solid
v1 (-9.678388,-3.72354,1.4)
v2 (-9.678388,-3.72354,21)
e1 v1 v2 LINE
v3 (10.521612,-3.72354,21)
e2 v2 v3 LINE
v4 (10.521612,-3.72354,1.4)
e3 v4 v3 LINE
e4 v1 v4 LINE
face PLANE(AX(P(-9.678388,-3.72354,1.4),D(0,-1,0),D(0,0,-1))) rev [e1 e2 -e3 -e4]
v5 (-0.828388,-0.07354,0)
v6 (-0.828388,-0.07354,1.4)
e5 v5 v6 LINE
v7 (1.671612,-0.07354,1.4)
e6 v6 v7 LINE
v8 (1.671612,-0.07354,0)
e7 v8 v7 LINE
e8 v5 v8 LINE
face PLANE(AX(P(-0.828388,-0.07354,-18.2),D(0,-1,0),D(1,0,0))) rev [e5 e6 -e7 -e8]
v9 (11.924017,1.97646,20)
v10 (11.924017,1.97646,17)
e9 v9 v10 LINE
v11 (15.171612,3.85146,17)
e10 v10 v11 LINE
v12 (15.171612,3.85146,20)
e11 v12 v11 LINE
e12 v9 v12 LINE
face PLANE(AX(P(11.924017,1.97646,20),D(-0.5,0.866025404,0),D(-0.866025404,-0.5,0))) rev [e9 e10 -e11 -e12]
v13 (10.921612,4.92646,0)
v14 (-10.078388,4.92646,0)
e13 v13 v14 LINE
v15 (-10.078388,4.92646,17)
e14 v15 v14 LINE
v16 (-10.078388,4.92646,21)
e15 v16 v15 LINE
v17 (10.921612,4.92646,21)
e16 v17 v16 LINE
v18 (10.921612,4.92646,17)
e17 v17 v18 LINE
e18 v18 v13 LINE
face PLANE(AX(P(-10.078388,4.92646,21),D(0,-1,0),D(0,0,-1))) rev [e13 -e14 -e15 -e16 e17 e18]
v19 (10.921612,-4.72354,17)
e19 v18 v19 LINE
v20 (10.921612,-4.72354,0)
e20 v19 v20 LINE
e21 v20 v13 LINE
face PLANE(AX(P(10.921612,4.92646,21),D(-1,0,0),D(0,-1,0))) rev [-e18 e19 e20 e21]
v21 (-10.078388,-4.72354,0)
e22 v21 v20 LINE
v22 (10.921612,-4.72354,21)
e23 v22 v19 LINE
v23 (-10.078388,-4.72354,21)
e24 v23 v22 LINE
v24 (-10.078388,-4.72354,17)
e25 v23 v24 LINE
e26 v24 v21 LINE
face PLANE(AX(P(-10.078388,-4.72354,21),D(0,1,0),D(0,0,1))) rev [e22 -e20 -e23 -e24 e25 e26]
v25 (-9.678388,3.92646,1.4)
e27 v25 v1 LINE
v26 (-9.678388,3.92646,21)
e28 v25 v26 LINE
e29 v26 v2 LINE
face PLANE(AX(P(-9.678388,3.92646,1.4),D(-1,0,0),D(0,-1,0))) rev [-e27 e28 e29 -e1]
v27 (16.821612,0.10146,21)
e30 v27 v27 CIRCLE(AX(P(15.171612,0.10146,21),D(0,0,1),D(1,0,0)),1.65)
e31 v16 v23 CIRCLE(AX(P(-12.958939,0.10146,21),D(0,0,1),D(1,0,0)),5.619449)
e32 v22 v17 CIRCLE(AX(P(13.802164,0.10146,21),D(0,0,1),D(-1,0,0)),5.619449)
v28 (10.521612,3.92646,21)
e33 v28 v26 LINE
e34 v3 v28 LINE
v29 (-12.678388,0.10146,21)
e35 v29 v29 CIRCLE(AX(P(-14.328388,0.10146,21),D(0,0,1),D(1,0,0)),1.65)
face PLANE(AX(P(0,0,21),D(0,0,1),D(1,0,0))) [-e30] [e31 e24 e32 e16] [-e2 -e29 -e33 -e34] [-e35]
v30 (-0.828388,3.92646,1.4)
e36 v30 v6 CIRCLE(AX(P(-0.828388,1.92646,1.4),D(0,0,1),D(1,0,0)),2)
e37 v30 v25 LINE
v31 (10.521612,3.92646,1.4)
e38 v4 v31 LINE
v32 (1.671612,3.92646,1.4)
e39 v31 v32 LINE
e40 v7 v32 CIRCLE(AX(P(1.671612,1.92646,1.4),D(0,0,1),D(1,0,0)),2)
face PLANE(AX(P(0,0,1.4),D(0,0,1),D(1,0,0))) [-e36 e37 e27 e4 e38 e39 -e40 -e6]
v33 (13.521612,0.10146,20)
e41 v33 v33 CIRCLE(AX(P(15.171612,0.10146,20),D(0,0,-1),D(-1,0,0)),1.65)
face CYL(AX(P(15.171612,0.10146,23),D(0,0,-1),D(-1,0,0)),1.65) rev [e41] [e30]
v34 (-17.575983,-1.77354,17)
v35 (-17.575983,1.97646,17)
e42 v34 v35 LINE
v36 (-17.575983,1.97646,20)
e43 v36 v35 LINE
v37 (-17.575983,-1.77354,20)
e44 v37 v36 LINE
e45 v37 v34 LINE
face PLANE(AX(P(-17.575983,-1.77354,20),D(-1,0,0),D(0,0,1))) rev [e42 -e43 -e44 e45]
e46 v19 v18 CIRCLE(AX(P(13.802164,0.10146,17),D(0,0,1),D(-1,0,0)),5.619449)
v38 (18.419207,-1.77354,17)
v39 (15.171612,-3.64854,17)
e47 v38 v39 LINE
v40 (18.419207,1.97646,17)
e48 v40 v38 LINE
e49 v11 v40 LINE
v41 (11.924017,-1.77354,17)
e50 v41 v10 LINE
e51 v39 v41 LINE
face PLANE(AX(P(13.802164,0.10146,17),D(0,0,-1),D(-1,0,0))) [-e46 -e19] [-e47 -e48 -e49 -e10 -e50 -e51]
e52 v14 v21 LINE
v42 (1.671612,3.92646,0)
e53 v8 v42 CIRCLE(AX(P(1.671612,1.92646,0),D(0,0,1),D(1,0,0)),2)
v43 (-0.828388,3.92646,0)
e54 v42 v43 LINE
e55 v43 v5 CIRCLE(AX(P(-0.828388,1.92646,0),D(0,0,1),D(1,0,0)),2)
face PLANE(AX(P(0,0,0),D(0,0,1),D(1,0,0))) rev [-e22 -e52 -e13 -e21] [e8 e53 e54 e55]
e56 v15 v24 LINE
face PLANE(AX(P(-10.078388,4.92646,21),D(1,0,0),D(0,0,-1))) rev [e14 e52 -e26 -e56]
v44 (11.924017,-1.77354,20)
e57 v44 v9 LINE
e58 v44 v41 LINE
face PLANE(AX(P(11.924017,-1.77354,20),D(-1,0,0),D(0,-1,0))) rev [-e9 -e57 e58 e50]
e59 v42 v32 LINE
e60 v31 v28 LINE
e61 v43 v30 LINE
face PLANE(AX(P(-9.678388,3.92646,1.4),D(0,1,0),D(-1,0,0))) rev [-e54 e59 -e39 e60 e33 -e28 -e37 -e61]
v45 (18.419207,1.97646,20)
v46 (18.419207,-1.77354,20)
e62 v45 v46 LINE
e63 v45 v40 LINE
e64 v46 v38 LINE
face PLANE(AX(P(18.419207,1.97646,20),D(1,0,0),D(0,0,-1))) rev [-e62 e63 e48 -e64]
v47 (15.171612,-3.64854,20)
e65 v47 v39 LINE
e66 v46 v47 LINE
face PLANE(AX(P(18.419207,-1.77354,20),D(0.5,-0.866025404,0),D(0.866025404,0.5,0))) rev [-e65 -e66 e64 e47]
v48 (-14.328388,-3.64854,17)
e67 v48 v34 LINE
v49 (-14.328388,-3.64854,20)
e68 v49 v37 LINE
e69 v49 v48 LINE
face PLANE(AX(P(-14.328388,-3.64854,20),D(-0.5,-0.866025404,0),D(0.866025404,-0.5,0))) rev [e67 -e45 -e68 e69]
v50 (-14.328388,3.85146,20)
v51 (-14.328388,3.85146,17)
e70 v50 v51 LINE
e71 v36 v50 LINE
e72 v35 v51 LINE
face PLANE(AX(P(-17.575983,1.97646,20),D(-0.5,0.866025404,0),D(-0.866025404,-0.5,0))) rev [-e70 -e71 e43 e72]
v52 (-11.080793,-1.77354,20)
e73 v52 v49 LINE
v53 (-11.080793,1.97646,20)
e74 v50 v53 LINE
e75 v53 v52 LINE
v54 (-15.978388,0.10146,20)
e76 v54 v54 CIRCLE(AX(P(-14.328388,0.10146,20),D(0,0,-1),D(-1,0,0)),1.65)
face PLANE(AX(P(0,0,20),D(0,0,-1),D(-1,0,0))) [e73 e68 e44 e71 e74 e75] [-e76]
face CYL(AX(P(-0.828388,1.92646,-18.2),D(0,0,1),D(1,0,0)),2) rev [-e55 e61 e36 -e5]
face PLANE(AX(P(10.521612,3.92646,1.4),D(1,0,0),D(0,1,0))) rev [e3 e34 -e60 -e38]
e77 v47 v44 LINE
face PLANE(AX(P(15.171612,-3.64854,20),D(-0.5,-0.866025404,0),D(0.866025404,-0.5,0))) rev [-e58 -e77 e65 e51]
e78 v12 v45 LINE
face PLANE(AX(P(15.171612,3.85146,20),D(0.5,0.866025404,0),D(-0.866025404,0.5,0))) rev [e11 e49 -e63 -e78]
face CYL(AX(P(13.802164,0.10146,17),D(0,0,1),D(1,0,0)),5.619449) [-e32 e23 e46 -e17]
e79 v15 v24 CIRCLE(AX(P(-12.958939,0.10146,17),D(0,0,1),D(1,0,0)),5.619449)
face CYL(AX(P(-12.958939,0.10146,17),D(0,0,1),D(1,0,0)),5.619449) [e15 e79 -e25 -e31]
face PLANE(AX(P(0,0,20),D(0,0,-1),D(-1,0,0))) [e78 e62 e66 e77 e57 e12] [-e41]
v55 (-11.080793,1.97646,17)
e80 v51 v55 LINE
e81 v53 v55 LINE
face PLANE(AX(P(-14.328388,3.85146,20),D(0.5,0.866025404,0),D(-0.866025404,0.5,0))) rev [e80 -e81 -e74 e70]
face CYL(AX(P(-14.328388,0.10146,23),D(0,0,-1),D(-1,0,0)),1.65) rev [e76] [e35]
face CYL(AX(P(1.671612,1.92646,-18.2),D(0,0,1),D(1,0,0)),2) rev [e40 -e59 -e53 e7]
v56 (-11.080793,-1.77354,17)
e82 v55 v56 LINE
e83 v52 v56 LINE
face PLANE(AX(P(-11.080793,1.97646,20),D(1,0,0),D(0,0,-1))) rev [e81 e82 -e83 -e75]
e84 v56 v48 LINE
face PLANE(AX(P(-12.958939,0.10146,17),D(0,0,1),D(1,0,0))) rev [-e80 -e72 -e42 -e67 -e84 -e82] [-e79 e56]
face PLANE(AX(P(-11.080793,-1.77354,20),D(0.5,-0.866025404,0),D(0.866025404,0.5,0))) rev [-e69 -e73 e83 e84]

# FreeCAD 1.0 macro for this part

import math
import FreeCAD as App
import Part
import Sketcher

V = App.Vector
Q = App.Units.Quantity

doc = App.newDocument("Part")
body = doc.addObject("PartDesign::Body", "Body")

sketch1 = body.newObject("Sketcher::SketchObject", "Sketch")
sketch1.AttachmentSupport = (doc.getObject("XY_Plane"), [""])
sketch1.MapMode = "FlatFace"
sketch1.addGeometry(Part.LineSegment(V(-10.078388, 4.92646, 0), V(-10.078388, -4.72354, 0)), False)
sketch1.addGeometry(Part.LineSegment(V(-10.078388, -4.72354, 0), V(10.921612, -4.72354, 0)), False)
sketch1.addGeometry(Part.LineSegment(V(10.921612, -4.72354, 0), V(10.921612, 4.92646, 0)), False)
sketch1.addGeometry(Part.LineSegment(V(10.921612, 4.92646, 0), V(-10.078388, 4.92646, 0)), False)
sketch1.addConstraint(Sketcher.Constraint("Coincident", 0, 2, 1, 1))
sketch1.addConstraint(Sketcher.Constraint("Coincident", 1, 2, 2, 1))
sketch1.addConstraint(Sketcher.Constraint("Coincident", 2, 2, 3, 1))
sketch1.addConstraint(Sketcher.Constraint("Coincident", 3, 2, 0, 1))
sketch1.addConstraint(Sketcher.Constraint("Vertical", 0))
sketch1.addConstraint(Sketcher.Constraint("Horizontal", 1))
sketch1.addConstraint(Sketcher.Constraint("Vertical", 2))
sketch1.addConstraint(Sketcher.Constraint("Horizontal", 3))
sketch1.addConstraint(Sketcher.Constraint("DistanceX", 1, 1, 1, 2, 21.0))
sketch1.addConstraint(Sketcher.Constraint("DistanceY", 0, 2, 0, 1, 9.65))
sketch1.addConstraint(Sketcher.Constraint("DistanceY", 0, 2, -1, 1, 4.72354))
sketch1.addConstraint(Sketcher.Constraint("DistanceX", 0, 2, -1, 1, 10.078388))
pad1 = body.newObject("PartDesign::Pad", "Pad")
pad1.Profile = sketch1
pad1.Length = 21

sketch2 = body.newObject("Sketcher::SketchObject", "Sketch001")
sketch2.AttachmentSupport = (doc.getObject("XY_Plane"), [""])
sketch2.MapMode = "FlatFace"
sketch2.AttachmentOffset = App.Placement(V(0, 0, 21), App.Rotation())
sketch2.addGeometry(Part.LineSegment(V(-9.678388, 3.92646, 0), V(-9.678388, -3.72354, 0)), False)
sketch2.addGeometry(Part.LineSegment(V(-9.678388, -3.72354, 0), V(10.521612, -3.72354, 0)), False)
sketch2.addGeometry(Part.LineSegment(V(10.521612, -3.72354, 0), V(10.521612, 3.92646, 0)), False)
sketch2.addGeometry(Part.LineSegment(V(10.521612, 3.92646, 0), V(-9.678388, 3.92646, 0)), False)
sketch2.addConstraint(Sketcher.Constraint("Coincident", 0, 2, 1, 1))
sketch2.addConstraint(Sketcher.Constraint("Coincident", 1, 2, 2, 1))
sketch2.addConstraint(Sketcher.Constraint("Coincident", 2, 2, 3, 1))
sketch2.addConstraint(Sketcher.Constraint("Coincident", 3, 2, 0, 1))
sketch2.addConstraint(Sketcher.Constraint("Vertical", 0))
sketch2.addConstraint(Sketcher.Constraint("Horizontal", 1))
sketch2.addConstraint(Sketcher.Constraint("Vertical", 2))
sketch2.addConstraint(Sketcher.Constraint("Horizontal", 3))
sketch2.addConstraint(Sketcher.Constraint("DistanceX", 1, 1, 1, 2, 20.2))
sketch2.addConstraint(Sketcher.Constraint("DistanceY", 0, 2, 0, 1, 7.65))
sketch2.addConstraint(Sketcher.Constraint("DistanceY", 0, 2, -1, 1, 3.72354))
sketch2.addConstraint(Sketcher.Constraint("DistanceX", 0, 2, -1, 1, 9.678388))
pocket1 = body.newObject("PartDesign::Pocket", "Pocket")
pocket1.Profile = sketch2
pocket1.Length = 19.6

sketch3 = body.newObject("Sketcher::SketchObject", "Sketch002")
sketch3.AttachmentSupport = (doc.getObject("XY_Plane"), [""])
sketch3.MapMode = "FlatFace"
sketch3.AttachmentOffset = App.Placement(V(0, 0, 1.4), App.Rotation())
sketch3.addGeometry(Part.LineSegment(V(1.671612, 3.92646, 0), V(-0.828388, 3.92646, 0)), False)
sketch3.addGeometry(Part.ArcOfCircle(Part.Circle(V(-0.828388, 1.92646, 0), V(0, 0, 1), 2), math.radians(90), math.radians(270)), False)
sketch3.addGeometry(Part.LineSegment(V(-0.828388, -0.07354, 0), V(1.671612, -0.07354, 0)), False)
sketch3.addGeometry(Part.ArcOfCircle(Part.Circle(V(1.671612, 1.92646, 0), V(0, 0, 1), 2), math.radians(-90), math.radians(90)), False)
sketch3.addConstraint(Sketcher.Constraint("Tangent", 0, 2, 1, 1))
sketch3.addConstraint(Sketcher.Constraint("Tangent", 1, 2, 2, 1))
sketch3.addConstraint(Sketcher.Constraint("Tangent", 2, 2, 3, 1))
sketch3.addConstraint(Sketcher.Constraint("Tangent", 3, 2, 0, 1))
sketch3.addConstraint(Sketcher.Constraint("Horizontal", 0))
sketch3.addConstraint(Sketcher.Constraint("Horizontal", 2))
sketch3.addConstraint(Sketcher.Constraint("Radius", 1, 2.0))
sketch3.addConstraint(Sketcher.Constraint("DistanceX", 0, 2, 0, 1, 2.5))
sketch3.addConstraint(Sketcher.Constraint("DistanceY", -1, 1, 1, 3, 1.92646))
sketch3.addConstraint(Sketcher.Constraint("DistanceX", 1, 3, -1, 1, 0.828388))
pocket2 = body.newObject("PartDesign::Pocket", "Pocket001")
pocket2.Profile = sketch3
pocket2.Length = 19.6

sketch4 = body.newObject("Sketcher::SketchObject", "Sketch003")
sketch4.AttachmentSupport = (doc.getObject("XY_Plane"), [""])
sketch4.MapMode = "FlatFace"
sketch4.AttachmentOffset = App.Placement(V(0, 0, 21), App.Rotation())
sketch4.addGeometry(Part.LineSegment(V(-10.078388, -4.72354, 0), V(-10.078388, 4.92646, 0)), False)
sketch4.addGeometry(Part.ArcOfCircle(Part.Circle(V(-12.958939, 0.10146, 0), V(0, 0, 1), 5.619449), math.radians(59.162567), math.radians(300.837433)), False)
sketch4.addConstraint(Sketcher.Constraint("Coincident", 0, 1, 1, 2))
sketch4.addConstraint(Sketcher.Constraint("Coincident", 1, 1, 0, 2))
sketch4.addConstraint(Sketcher.Constraint("Vertical", 0))
sketch4.addConstraint(Sketcher.Constraint("DistanceY", 0, 1, 0, 2, 9.65))
sketch4.addConstraint(Sketcher.Constraint("Radius", 1, 5.619449))
sketch4.addConstraint(Sketcher.Constraint("DistanceX", 1, 3, -1, 1, 12.958939))
sketch4.addConstraint(Sketcher.Constraint("DistanceY", -1, 1, 1, 3, 0.10146))
pad2 = body.newObject("PartDesign::Pad", "Pad001")
pad2.Profile = sketch4
pad2.Length = 4
pad2.Reversed = True

sketch5 = body.newObject("Sketcher::SketchObject", "Sketch004")
sketch5.AttachmentSupport = (doc.getObject("XY_Plane"), [""])
sketch5.MapMode = "FlatFace"
sketch5.AttachmentOffset = App.Placement(V(0, 0, 17), App.Rotation())
sketch5.addGeometry(Part.LineSegment(V(-14.328388, 3.85146, 0), V(-11.080793, 1.97646, 0)), False)
sketch5.addGeometry(Part.LineSegment(V(-11.080793, 1.97646, 0), V(-11.080793, -1.77354, 0)), False)
sketch5.addGeometry(Part.LineSegment(V(-11.080793, -1.77354, 0), V(-14.328388, -3.64854, 0)), False)
sketch5.addGeometry(Part.LineSegment(V(-14.328388, -3.64854, 0), V(-17.575983, -1.77354, 0)), False)
sketch5.addGeometry(Part.LineSegment(V(-17.575983, -1.77354, 0), V(-17.575983, 1.97646, 0)), False)
sketch5.addGeometry(Part.LineSegment(V(-17.575983, 1.97646, 0), V(-14.328388, 3.85146, 0)), False)
sketch5.addConstraint(Sketcher.Constraint("Coincident", 0, 2, 1, 1))
sketch5.addConstraint(Sketcher.Constraint("Coincident", 1, 2, 2, 1))
sketch5.addConstraint(Sketcher.Constraint("Coincident", 2, 2, 3, 1))
sketch5.addConstraint(Sketcher.Constraint("Coincident", 3, 2, 4, 1))
sketch5.addConstraint(Sketcher.Constraint("Coincident", 4, 2, 5, 1))
sketch5.addConstraint(Sketcher.Constraint("Coincident", 5, 2, 0, 1))
sketch5.addConstraint(Sketcher.Constraint("Vertical", 1))
sketch5.addConstraint(Sketcher.Constraint("Vertical", 4))
sketch5.addConstraint(Sketcher.Constraint("Parallel", 0, 3))
sketch5.addConstraint(Sketcher.Constraint("Parallel", 2, 5))
sketch5.addConstraint(Sketcher.Constraint("Horizontal", 1, 2, 3, 2))
sketch5.addConstraint(Sketcher.Constraint("Horizontal", 0, 2, 4, 2))
sketch5.addConstraint(Sketcher.Constraint("Vertical", 2, 2, 5, 2))
sketch5.addConstraint(Sketcher.Constraint("Angle", 0, Q("-30 deg")))
sketch5.addConstraint(Sketcher.Constraint("DistanceY", 1, 2, 1, 1, 3.75))
sketch5.addConstraint(Sketcher.Constraint("DistanceY", 2, 2, 5, 2, 7.5))
sketch5.addConstraint(Sketcher.Constraint("DistanceY", -1, 1, 0, 2, 1.97646))
sketch5.addConstraint(Sketcher.Constraint("DistanceX", 0, 2, -1, 1, 11.080793))
pocket3 = body.newObject("PartDesign::Pocket", "Pocket002")
pocket3.Profile = sketch5
pocket3.Length = 3
pocket3.Reversed = True

sketch6 = body.newObject("Sketcher::SketchObject", "Sketch005")
sketch6.AttachmentSupport = (doc.getObject("XY_Plane"), [""])
sketch6.MapMode = "FlatFace"
sketch6.AttachmentOffset = App.Placement(V(0, 0, 20), App.Rotation())
sketch6.addGeometry(Part.Circle(V(-14.328388, 0.10146, 0), V(0, 0, 1), 1.65), False)
sketch6.addConstraint(Sketcher.Constraint("Diameter", 0, 3.3))
sketch6.addConstraint(Sketcher.Constraint("DistanceY", -1, 1, 0, 3, 0.10146))
sketch6.addConstraint(Sketcher.Constraint("DistanceX", 0, 3, -1, 1, 14.328388))
pocket4 = body.newObject("PartDesign::Pocket", "Pocket003")
pocket4.Profile = sketch6
pocket4.Length = 3
pocket4.Reversed = True

sketch7 = body.newObject("Sketcher::SketchObject", "Sketch006")
sketch7.AttachmentSupport = (doc.getObject("XY_Plane"), [""])
sketch7.MapMode = "FlatFace"
sketch7.AttachmentOffset = App.Placement(V(0, 0, 21), App.Rotation())
sketch7.addGeometry(Part.LineSegment(V(10.921612, 4.92646, 0), V(10.921612, -4.72354, 0)), False)
sketch7.addGeometry(Part.ArcOfCircle(Part.Circle(V(13.802164, 0.10146, 0), V(0, 0, 1), 5.619449), math.radians(-120.837433), math.radians(120.837433)), False)
sketch7.addConstraint(Sketcher.Constraint("Coincident", 0, 1, 1, 2))
sketch7.addConstraint(Sketcher.Constraint("Coincident", 1, 1, 0, 2))
sketch7.addConstraint(Sketcher.Constraint("Vertical", 0))
sketch7.addConstraint(Sketcher.Constraint("DistanceY", 0, 2, 0, 1, 9.65))
sketch7.addConstraint(Sketcher.Constraint("Radius", 1, 5.619449))
sketch7.addConstraint(Sketcher.Constraint("DistanceY", -1, 1, 1, 3, 0.10146))
sketch7.addConstraint(Sketcher.Constraint("DistanceX", -1, 1, 1, 3, 13.802164))
pad3 = body.newObject("PartDesign::Pad", "Pad002")
pad3.Profile = sketch7
pad3.Length = 4
pad3.Reversed = True

sketch8 = body.newObject("Sketcher::SketchObject", "Sketch007")
sketch8.AttachmentSupport = (doc.getObject("XY_Plane"), [""])
sketch8.MapMode = "FlatFace"
sketch8.AttachmentOffset = App.Placement(V(0, 0, 17), App.Rotation())
sketch8.addGeometry(Part.LineSegment(V(15.171612, 3.85146, 0), V(18.419207, 1.97646, 0)), False)
sketch8.addGeometry(Part.LineSegment(V(18.419207, 1.97646, 0), V(18.419207, -1.77354, 0)), False)
sketch8.addGeometry(Part.LineSegment(V(18.419207, -1.77354, 0), V(15.171612, -3.64854, 0)), False)
sketch8.addGeometry(Part.LineSegment(V(15.171612, -3.64854, 0), V(11.924017, -1.77354, 0)), False)
sketch8.addGeometry(Part.LineSegment(V(11.924017, -1.77354, 0), V(11.924017, 1.97646, 0)), False)
sketch8.addGeometry(Part.LineSegment(V(11.924017, 1.97646, 0), V(15.171612, 3.85146, 0)), False)
sketch8.addConstraint(Sketcher.Constraint("Coincident", 0, 2, 1, 1))
sketch8.addConstraint(Sketcher.Constraint("Coincident", 1, 2, 2, 1))
sketch8.addConstraint(Sketcher.Constraint("Coincident", 2, 2, 3, 1))
sketch8.addConstraint(Sketcher.Constraint("Coincident", 3, 2, 4, 1))
sketch8.addConstraint(Sketcher.Constraint("Coincident", 4, 2, 5, 1))
sketch8.addConstraint(Sketcher.Constraint("Coincident", 5, 2, 0, 1))
sketch8.addConstraint(Sketcher.Constraint("Vertical", 1))
sketch8.addConstraint(Sketcher.Constraint("Vertical", 4))
sketch8.addConstraint(Sketcher.Constraint("Parallel", 0, 3))
sketch8.addConstraint(Sketcher.Constraint("Parallel", 2, 5))
sketch8.addConstraint(Sketcher.Constraint("Horizontal", 1, 2, 3, 2))
sketch8.addConstraint(Sketcher.Constraint("Horizontal", 0, 2, 4, 2))
sketch8.addConstraint(Sketcher.Constraint("Vertical", 2, 2, 5, 2))
sketch8.addConstraint(Sketcher.Constraint("Angle", 0, Q("-30 deg")))
sketch8.addConstraint(Sketcher.Constraint("DistanceY", 1, 2, 1, 1, 3.75))
sketch8.addConstraint(Sketcher.Constraint("DistanceY", 2, 2, 5, 2, 7.5))
sketch8.addConstraint(Sketcher.Constraint("DistanceY", -1, 1, 0, 2, 1.97646))
sketch8.addConstraint(Sketcher.Constraint("DistanceX", -1, 1, 0, 2, 18.419207))
pocket5 = body.newObject("PartDesign::Pocket", "Pocket004")
pocket5.Profile = sketch8
pocket5.Length = 3
pocket5.Reversed = True

sketch9 = body.newObject("Sketcher::SketchObject", "Sketch008")
sketch9.AttachmentSupport = (doc.getObject("XY_Plane"), [""])
sketch9.MapMode = "FlatFace"
sketch9.AttachmentOffset = App.Placement(V(0, 0, 20), App.Rotation())
sketch9.addGeometry(Part.Circle(V(15.171612, 0.10146, 0), V(0, 0, 1), 1.65), False)
sketch9.addConstraint(Sketcher.Constraint("Diameter", 0, 3.3))
sketch9.addConstraint(Sketcher.Constraint("DistanceY", -1, 1, 0, 3, 0.10146))
sketch9.addConstraint(Sketcher.Constraint("DistanceX", -1, 1, 0, 3, 15.171612))
pocket6 = body.newObject("PartDesign::Pocket", "Pocket005")
pocket6.Profile = sketch9
pocket6.Length = 3
pocket6.Reversed = True

doc.recompute()
